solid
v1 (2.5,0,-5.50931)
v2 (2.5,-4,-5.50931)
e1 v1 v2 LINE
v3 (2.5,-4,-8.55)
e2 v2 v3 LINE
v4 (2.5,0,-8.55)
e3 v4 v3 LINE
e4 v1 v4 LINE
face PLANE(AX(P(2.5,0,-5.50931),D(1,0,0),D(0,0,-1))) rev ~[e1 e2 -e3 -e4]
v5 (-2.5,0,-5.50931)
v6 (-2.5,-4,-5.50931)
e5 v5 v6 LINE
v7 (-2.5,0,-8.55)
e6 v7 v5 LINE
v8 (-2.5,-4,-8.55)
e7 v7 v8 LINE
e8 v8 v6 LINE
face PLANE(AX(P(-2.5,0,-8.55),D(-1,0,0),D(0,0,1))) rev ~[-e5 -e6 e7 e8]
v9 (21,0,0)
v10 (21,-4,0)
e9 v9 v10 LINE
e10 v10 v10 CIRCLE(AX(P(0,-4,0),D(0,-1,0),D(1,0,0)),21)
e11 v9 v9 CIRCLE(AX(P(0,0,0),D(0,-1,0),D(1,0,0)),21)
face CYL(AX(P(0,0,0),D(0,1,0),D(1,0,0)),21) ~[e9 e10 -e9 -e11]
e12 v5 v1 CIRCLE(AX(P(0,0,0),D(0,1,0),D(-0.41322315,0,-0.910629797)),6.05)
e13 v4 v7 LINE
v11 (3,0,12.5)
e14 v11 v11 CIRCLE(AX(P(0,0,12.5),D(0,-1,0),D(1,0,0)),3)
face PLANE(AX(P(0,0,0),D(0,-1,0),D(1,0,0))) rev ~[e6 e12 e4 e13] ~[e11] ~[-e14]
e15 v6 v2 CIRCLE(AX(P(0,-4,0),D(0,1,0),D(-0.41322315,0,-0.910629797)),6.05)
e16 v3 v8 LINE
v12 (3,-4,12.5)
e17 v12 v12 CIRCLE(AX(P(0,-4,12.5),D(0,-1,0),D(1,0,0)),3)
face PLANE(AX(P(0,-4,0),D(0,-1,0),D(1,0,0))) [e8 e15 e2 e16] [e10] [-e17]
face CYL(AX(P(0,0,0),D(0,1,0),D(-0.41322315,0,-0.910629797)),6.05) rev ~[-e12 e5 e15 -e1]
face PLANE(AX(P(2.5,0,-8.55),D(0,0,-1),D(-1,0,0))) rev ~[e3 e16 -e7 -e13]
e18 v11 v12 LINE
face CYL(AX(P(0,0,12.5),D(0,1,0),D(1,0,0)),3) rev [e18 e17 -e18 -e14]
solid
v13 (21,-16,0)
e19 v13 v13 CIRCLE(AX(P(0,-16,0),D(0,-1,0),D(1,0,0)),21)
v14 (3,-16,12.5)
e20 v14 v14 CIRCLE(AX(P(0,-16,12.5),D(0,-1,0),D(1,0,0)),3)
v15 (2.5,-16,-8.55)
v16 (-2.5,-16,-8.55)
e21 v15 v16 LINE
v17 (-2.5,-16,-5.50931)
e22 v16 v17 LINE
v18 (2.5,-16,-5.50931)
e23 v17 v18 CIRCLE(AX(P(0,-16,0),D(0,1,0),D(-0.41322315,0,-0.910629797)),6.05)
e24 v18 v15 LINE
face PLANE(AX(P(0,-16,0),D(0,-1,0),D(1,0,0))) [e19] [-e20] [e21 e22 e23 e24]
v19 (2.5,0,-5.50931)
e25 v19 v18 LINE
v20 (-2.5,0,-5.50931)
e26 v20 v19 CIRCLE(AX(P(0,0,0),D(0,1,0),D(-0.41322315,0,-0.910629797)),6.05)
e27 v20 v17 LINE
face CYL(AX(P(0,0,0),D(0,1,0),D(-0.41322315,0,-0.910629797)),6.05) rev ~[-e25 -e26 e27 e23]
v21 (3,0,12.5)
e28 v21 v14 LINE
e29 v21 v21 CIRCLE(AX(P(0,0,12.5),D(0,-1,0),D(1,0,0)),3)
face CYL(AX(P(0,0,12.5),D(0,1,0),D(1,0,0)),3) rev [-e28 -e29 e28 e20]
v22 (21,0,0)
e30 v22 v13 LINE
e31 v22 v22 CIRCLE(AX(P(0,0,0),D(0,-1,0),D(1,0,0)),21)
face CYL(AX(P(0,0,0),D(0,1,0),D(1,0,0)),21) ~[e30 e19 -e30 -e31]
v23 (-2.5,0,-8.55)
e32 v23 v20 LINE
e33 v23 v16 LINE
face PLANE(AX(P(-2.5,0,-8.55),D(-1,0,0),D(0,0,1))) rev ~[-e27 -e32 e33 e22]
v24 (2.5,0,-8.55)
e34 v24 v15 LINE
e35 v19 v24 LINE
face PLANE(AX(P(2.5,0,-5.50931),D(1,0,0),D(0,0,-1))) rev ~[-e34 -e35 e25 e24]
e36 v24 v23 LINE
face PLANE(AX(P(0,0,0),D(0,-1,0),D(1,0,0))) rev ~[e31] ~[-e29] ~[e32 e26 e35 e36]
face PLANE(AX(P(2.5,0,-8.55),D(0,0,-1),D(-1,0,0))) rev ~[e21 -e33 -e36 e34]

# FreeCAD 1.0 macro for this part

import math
import FreeCAD as App
import Part
import Sketcher

V = App.Vector
Q = App.Units.Quantity

doc = App.newDocument("Part")
body = doc.addObject("PartDesign::Body", "Body")

# Sketch on XZ plane
sketch1 = doc.addObject("Sketcher::SketchObject", "Sketch")
body.addObject(sketch1)
sketch1.AttachmentSupport = (doc.XZ_Plane, [""])
sketch1.MapMode = "FlatFace"
sketch1.addGeometry(Part.Circle(V(0, 0, 0), V(0, 0, 1), 21), False)
sketch1.addGeometry(Part.LineSegment(V(-2.5, -8.6, 0), V(-2.5, -5.5, 0)), False)
sketch1.addGeometry(Part.ArcOfCircle(Part.Circle(V(0, 0, 0), V(0, 0, 1), 6), math.radians(-66), math.radians(246)), False)
sketch1.addGeometry(Part.LineSegment(V(2.5, -5.5, 0), V(2.5, -8.6, 0)), False)
sketch1.addGeometry(Part.LineSegment(V(2.5, -8.6, 0), V(-2.5, -8.6, 0)), False)
sketch1.addGeometry(Part.Circle(V(0, 12.5, 0), V(0, 0, 1), 3), False)
sketch1.addConstraint(Sketcher.Constraint("Coincident", 1, 2, 2, 2))
sketch1.addConstraint(Sketcher.Constraint("Coincident", 2, 1, 3, 1))
sketch1.addConstraint(Sketcher.Constraint("Coincident", 3, 2, 4, 1))
sketch1.addConstraint(Sketcher.Constraint("Coincident", 4, 2, 1, 1))
sketch1.addConstraint(Sketcher.Constraint("Vertical", 1))
sketch1.addConstraint(Sketcher.Constraint("Vertical", 3))
sketch1.addConstraint(Sketcher.Constraint("Horizontal", 4))
sketch1.addConstraint(Sketcher.Constraint("Coincident", 0, 3, -1, 1))
sketch1.addConstraint(Sketcher.Constraint("Coincident", 2, 3, -1, 1))
sketch1.addConstraint(Sketcher.Constraint("PointOnObject", 5, 3, -2))
sketch1.addConstraint(Sketcher.Constraint("Horizontal", 1, 2, 2, 1))
sketch1.addConstraint(Sketcher.Constraint("Diameter", 0, Q("42 mm")))
sketch1.addConstraint(Sketcher.Constraint("Diameter", 5, Q("6 mm")))
sketch1.addConstraint(Sketcher.Constraint("DistanceX", 4, 2, 4, 1, Q("5 mm")))
sketch1.addConstraint(Sketcher.Constraint("Radius", 2, Q("6.05 mm")))
sketch1.addConstraint(Sketcher.Constraint("DistanceY", -1, 1, 5, 3, Q("12.5 mm")))
sketch1.addConstraint(Sketcher.Constraint("DistanceY", 3, 2, -1, 1, Q("8.55 mm")))
pad1 = doc.addObject("PartDesign::Pad", "Pad")
body.addObject(pad1)
pad1.Profile = sketch1
pad1.Length = 16
body2 = doc.addObject("PartDesign::Body", "Body001")

# Sketch on XZ plane
sketch2 = doc.addObject("Sketcher::SketchObject", "Sketch001")
body2.addObject(sketch2)
sketch2.AttachmentSupport = (doc.getObject("XZ_Plane001"), [""])
sketch2.MapMode = "FlatFace"
sketch2.addGeometry(Part.Circle(V(0, 0, 0), V(0, 0, 1), 21), False)
sketch2.addGeometry(Part.LineSegment(V(-2.5, -8.6, 0), V(-2.5, -5.5, 0)), False)
sketch2.addGeometry(Part.ArcOfCircle(Part.Circle(V(0, 0, 0), V(0, 0, 1), 6), math.radians(-66), math.radians(246)), False)
sketch2.addGeometry(Part.LineSegment(V(2.5, -5.5, 0), V(2.5, -8.6, 0)), False)
sketch2.addGeometry(Part.LineSegment(V(2.5, -8.6, 0), V(-2.5, -8.6, 0)), False)
sketch2.addGeometry(Part.Circle(V(0, 12.5, 0), V(0, 0, 1), 3), False)
sketch2.addConstraint(Sketcher.Constraint("Coincident", 1, 2, 2, 2))
sketch2.addConstraint(Sketcher.Constraint("Coincident", 2, 1, 3, 1))
sketch2.addConstraint(Sketcher.Constraint("Coincident", 3, 2, 4, 1))
sketch2.addConstraint(Sketcher.Constraint("Coincident", 4, 2, 1, 1))
sketch2.addConstraint(Sketcher.Constraint("Vertical", 1))
sketch2.addConstraint(Sketcher.Constraint("Vertical", 3))
sketch2.addConstraint(Sketcher.Constraint("Horizontal", 4))
sketch2.addConstraint(Sketcher.Constraint("Coincident", 0, 3, -1, 1))
sketch2.addConstraint(Sketcher.Constraint("Coincident", 2, 3, -1, 1))
sketch2.addConstraint(Sketcher.Constraint("PointOnObject", 5, 3, -2))
sketch2.addConstraint(Sketcher.Constraint("Horizontal", 1, 2, 2, 1))
sketch2.addConstraint(Sketcher.Constraint("Diameter", 0, Q("42 mm")))
sketch2.addConstraint(Sketcher.Constraint("Diameter", 5, Q("6 mm")))
sketch2.addConstraint(Sketcher.Constraint("DistanceX", 4, 2, 4, 1, Q("5 mm")))
sketch2.addConstraint(Sketcher.Constraint("Radius", 2, Q("6.05 mm")))
sketch2.addConstraint(Sketcher.Constraint("DistanceY", -1, 1, 5, 3, Q("12.5 mm")))
sketch2.addConstraint(Sketcher.Constraint("DistanceY", 3, 2, -1, 1, Q("8.55 mm")))
pad2 = doc.addObject("PartDesign::Pad", "Pad001")
body2.addObject(pad2)
pad2.Profile = sketch2
pad2.Length = 4

doc.recompute()
